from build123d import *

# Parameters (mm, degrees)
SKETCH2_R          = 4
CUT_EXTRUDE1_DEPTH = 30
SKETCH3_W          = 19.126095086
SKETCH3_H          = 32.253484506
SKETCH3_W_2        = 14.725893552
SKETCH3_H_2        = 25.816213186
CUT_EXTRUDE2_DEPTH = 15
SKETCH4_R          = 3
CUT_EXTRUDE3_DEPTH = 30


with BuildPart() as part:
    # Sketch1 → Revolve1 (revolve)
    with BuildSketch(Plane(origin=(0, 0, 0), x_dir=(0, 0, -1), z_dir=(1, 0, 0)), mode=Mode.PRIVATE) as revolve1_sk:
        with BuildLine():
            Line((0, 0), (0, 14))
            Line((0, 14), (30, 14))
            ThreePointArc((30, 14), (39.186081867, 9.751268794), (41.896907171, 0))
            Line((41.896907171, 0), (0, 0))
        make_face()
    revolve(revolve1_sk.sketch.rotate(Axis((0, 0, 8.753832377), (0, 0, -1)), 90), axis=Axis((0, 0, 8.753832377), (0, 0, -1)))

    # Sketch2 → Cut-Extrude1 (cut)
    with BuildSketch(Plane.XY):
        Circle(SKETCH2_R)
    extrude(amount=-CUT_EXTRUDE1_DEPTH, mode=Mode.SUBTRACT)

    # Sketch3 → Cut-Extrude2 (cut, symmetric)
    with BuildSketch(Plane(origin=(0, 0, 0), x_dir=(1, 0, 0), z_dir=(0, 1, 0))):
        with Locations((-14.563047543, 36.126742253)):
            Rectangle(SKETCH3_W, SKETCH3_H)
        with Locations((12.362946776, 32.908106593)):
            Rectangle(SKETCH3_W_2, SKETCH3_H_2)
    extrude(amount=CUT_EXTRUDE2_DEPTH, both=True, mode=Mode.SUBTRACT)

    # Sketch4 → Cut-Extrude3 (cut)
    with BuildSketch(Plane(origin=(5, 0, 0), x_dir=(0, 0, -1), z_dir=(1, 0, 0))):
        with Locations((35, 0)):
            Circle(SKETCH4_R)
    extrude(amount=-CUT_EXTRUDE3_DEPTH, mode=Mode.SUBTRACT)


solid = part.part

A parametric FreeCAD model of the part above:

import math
import FreeCAD as App
import Part
import Sketcher

V = App.Vector
Q = App.Units.Quantity


def add_polygon(sketch, points):
    """Adds a closed chain of lines whose ends are joined by coincident constraints."""
    first, n = sketch.GeometryCount, len(points)
    for a, b in zip(points, points[1:] + points[:1]):
        sketch.addGeometry(Part.LineSegment(App.Vector(*a, 0), App.Vector(*b, 0)), False)
    for i in range(n):
        sketch.addConstraint(Sketcher.Constraint("Coincident", first + i, 2, first + (i + 1) % n, 1))

doc = App.newDocument("Part")
body = doc.addObject("PartDesign::Body", "Body")

# Sketch on YZ plane
sketch1 = doc.addObject("Sketcher::SketchObject", "Sketch")
body.addObject(sketch1)
sketch1.AttachmentSupport = (doc.YZ_Plane, [""])
sketch1.MapMode = "FlatFace"
sketch1.addGeometry([
    Part.LineSegment(V(14, 0, 0), V(0, 0, 0)),
    Part.LineSegment(V(0, 0, 0), V(0, -41.896907, 0)),
    Part.ArcOfCircle(Part.Circle(V(1.945129, -30, 0), V(0, 0, 1), 12.054871), math.radians(-99.285625), math.radians(0)),
    Part.LineSegment(V(14, -30, 0), V(14, 0, 0)),
], False)
sketch1.addConstraint([
    Sketcher.Constraint("Coincident", 0, 2, 1, 1),
    Sketcher.Constraint("Coincident", 1, 2, 2, 1),
    Sketcher.Constraint("Tangent", 2, 2, 3, 1),
    Sketcher.Constraint("Coincident", 3, 2, 0, 1),
    Sketcher.Constraint("Horizontal", 0),
    Sketcher.Constraint("Vertical", 1),
    Sketcher.Constraint("Vertical", 3),
    Sketcher.Constraint("Coincident", 0, 2, -1, 1),
    Sketcher.Constraint("DistanceX", 0, 2, 0, 1, Q("14 mm")),
    Sketcher.Constraint("DistanceY", 3, 1, 3, 2, Q("30 mm")),
    Sketcher.Constraint("Radius", 2, Q("12.054871 mm")),
])
revolution = doc.addObject("PartDesign::Revolution", "Revolution")
body.addObject(revolution)
revolution.Profile = sketch1
revolution.ReferenceAxis = (sketch1, ["V_Axis"])
revolution.Angle = 360

# Sketch on XY plane
sketch2 = doc.addObject("Sketcher::SketchObject", "Sketch001")
body.addObject(sketch2)
sketch2.AttachmentSupport = (doc.XY_Plane, [""])
sketch2.MapMode = "FlatFace"
sketch2.addGeometry(Part.Circle(V(0, 0, 0), V(0, 0, 1), 4), False)
sketch2.addConstraint([
    Sketcher.Constraint("Coincident", 0, 3, -1, 1),
    Sketcher.Constraint("Diameter", 0, Q("8 mm")),
])
pocket1 = doc.addObject("PartDesign::Pocket", "Pocket")
body.addObject(pocket1)
pocket1.Profile = sketch2
pocket1.Length = 30

# Sketch on XZ plane
sketch3 = doc.addObject("Sketcher::SketchObject", "Sketch002")
body.addObject(sketch3)
sketch3.AttachmentSupport = (doc.XZ_Plane, [""])
sketch3.MapMode = "FlatFace"
add_polygon(sketch3, [(-24.126095, -52.253485), (-24.126095, -20), (-5, -20), (-5, -52.253485)])  # lines 0-3
add_polygon(sketch3, [(5, -45.816213), (5, -20), (19.725894, -20), (19.725894, -45.816213)])  # lines 4-7
sketch3.addConstraint([
    Sketcher.Constraint("Vertical", 0),
    Sketcher.Constraint("Horizontal", 1),
    Sketcher.Constraint("Vertical", 2),
    Sketcher.Constraint("Horizontal", 3),
    Sketcher.Constraint("Vertical", 4),
    Sketcher.Constraint("Horizontal", 5),
    Sketcher.Constraint("Vertical", 6),
    Sketcher.Constraint("Horizontal", 7),
    Sketcher.Constraint("Symmetric", 1, 2, 4, 2, -2),
    Sketcher.Constraint("DistanceY", 0, 2, -1, 1, Q("20 mm")),
    Sketcher.Constraint("DistanceX", 1, 2, -1, 1, Q("5 mm")),
    Sketcher.Constraint("DistanceX", 1, 1, 1, 2, Q("19.126095 mm")),
    Sketcher.Constraint("DistanceX", 5, 1, 5, 2, Q("14.725894 mm")),
    Sketcher.Constraint("DistanceY", 0, 1, 0, 2, Q("32.253485 mm")),
    Sketcher.Constraint("DistanceY", 4, 1, 4, 2, Q("25.816213 mm")),
])
pocket2 = doc.addObject("PartDesign::Pocket", "Pocket001")
body.addObject(pocket2)
pocket2.Profile = sketch3
pocket2.Length = 30
pocket2.Midplane = True

# Sketch on YZ plane
sketch4 = doc.addObject("Sketcher::SketchObject", "Sketch003")
body.addObject(sketch4)
sketch4.AttachmentSupport = (doc.YZ_Plane, [""])
sketch4.MapMode = "FlatFace"
sketch4.AttachmentOffset = App.Placement(V(0, 0, 5), App.Rotation())
sketch4.addGeometry(Part.Circle(V(0, -35, 0), V(0, 0, 1), 3), False)
sketch4.addConstraint([
    Sketcher.Constraint("PointOnObject", 0, 3, -2),
    Sketcher.Constraint("Diameter", 0, Q("6 mm")),
    Sketcher.Constraint("DistanceY", 0, 3, -1, 1, Q("35 mm")),
])
pocket3 = doc.addObject("PartDesign::Pocket", "Pocket002")
body.addObject(pocket3)
pocket3.Profile = sketch4
pocket3.Length = 30

doc.recompute()
